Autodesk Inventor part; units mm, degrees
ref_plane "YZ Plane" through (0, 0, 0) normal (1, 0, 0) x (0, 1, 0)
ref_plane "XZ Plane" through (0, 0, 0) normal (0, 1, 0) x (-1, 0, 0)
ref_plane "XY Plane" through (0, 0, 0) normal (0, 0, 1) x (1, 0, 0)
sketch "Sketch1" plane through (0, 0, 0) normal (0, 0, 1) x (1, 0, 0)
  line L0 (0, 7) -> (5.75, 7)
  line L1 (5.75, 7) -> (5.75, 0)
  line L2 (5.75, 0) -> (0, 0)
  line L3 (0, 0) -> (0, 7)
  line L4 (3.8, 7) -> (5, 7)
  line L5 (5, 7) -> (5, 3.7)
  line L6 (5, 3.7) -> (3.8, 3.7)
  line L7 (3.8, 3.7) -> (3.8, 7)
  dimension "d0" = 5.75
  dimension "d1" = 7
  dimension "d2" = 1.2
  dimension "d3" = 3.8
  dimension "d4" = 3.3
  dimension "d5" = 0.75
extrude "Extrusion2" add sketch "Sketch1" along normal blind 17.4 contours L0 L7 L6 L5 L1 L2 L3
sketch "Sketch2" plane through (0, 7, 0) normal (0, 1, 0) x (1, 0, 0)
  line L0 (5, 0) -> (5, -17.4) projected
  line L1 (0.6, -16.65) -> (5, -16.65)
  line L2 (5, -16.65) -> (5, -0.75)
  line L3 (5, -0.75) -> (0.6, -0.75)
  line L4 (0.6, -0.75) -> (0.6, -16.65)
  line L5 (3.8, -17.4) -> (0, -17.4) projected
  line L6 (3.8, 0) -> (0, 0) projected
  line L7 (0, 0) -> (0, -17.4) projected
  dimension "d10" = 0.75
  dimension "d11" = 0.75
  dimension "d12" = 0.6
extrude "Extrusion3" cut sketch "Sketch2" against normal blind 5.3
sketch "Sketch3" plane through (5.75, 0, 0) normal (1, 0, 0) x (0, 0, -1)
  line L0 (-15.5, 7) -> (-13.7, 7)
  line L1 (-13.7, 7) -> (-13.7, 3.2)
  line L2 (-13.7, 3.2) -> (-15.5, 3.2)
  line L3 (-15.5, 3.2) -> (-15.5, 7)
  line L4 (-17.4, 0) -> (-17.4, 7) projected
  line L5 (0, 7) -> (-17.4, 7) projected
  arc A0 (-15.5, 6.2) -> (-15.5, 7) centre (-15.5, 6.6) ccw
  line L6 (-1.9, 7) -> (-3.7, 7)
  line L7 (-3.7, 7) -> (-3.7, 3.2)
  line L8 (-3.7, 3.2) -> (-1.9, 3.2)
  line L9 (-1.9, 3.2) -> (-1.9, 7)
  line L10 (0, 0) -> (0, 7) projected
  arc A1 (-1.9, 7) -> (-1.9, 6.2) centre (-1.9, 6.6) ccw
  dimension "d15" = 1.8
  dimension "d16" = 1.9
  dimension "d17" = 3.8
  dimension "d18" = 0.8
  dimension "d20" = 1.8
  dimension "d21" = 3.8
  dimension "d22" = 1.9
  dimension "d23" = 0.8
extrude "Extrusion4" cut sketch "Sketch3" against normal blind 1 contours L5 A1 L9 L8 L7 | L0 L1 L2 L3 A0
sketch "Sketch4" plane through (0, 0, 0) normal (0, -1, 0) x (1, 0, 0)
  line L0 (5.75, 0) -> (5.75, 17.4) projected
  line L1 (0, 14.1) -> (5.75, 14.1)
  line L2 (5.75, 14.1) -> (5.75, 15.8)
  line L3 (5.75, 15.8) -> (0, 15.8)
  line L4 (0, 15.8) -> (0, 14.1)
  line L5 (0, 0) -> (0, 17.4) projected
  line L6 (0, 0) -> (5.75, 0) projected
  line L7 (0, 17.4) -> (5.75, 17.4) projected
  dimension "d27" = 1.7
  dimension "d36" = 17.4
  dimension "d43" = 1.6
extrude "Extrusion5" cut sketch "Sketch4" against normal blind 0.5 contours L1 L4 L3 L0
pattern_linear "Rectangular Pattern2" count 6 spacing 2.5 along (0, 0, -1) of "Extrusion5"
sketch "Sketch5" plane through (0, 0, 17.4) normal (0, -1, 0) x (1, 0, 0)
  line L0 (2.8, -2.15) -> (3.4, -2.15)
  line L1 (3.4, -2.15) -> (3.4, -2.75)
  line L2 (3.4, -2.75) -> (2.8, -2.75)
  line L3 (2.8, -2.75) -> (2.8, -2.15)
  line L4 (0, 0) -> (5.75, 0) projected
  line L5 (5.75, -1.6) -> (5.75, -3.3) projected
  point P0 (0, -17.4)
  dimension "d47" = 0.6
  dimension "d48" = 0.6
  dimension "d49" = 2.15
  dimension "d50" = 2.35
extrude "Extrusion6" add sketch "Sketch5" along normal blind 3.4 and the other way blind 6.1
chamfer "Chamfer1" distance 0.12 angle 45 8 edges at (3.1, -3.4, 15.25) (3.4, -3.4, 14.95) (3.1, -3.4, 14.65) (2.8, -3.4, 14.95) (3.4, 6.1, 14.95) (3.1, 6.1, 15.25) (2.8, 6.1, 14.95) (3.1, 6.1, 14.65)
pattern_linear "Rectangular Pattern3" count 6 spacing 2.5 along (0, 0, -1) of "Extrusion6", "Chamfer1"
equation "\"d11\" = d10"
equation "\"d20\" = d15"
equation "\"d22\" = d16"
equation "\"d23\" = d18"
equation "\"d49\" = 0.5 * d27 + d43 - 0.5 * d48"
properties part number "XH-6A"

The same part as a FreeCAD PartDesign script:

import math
import FreeCAD as App
import Part
import Sketcher

V = App.Vector
Q = App.Units.Quantity


def edges_at(feature, points):
    """Names of the edges that pass closest to the given points."""
    edges = feature.Shape.Edges
    near = lambda p: min(range(len(edges)), key=lambda i: edges[i].distToShape(Part.Vertex(*p))[0])
    return sorted({f"Edge{near(p) + 1}" for p in points})

doc = App.newDocument("Part")
body = doc.addObject("PartDesign::Body", "Body")

sketch1 = doc.addObject("Sketcher::SketchObject", "Sketch")
body.addObject(sketch1)
sketch1.AttachmentSupport = (doc.XY_Plane, [""])
sketch1.MapMode = "FlatFace"
sketch1.addGeometry(Part.LineSegment(V(3.8, 7, 0), V(0, 7, 0)), False)
sketch1.addGeometry(Part.LineSegment(V(0, 7, 0), V(0, 0, 0)), False)
sketch1.addGeometry(Part.LineSegment(V(0, 0, 0), V(5.8, 0, 0)), False)
sketch1.addGeometry(Part.LineSegment(V(5.8, 0, 0), V(5.8, 7, 0)), False)
sketch1.addGeometry(Part.LineSegment(V(5.8, 7, 0), V(5, 7, 0)), False)
sketch1.addGeometry(Part.LineSegment(V(5, 7, 0), V(5, 3.7, 0)), False)
sketch1.addGeometry(Part.LineSegment(V(5, 3.7, 0), V(3.8, 3.7, 0)), False)
sketch1.addGeometry(Part.LineSegment(V(3.8, 3.7, 0), V(3.8, 7, 0)), False)
sketch1.addConstraint(Sketcher.Constraint("Coincident", 0, 2, 1, 1))
sketch1.addConstraint(Sketcher.Constraint("Coincident", 1, 2, 2, 1))
sketch1.addConstraint(Sketcher.Constraint("Coincident", 2, 2, 3, 1))
sketch1.addConstraint(Sketcher.Constraint("Coincident", 3, 2, 4, 1))
sketch1.addConstraint(Sketcher.Constraint("Coincident", 4, 2, 5, 1))
sketch1.addConstraint(Sketcher.Constraint("Coincident", 5, 2, 6, 1))
sketch1.addConstraint(Sketcher.Constraint("Coincident", 6, 2, 7, 1))
sketch1.addConstraint(Sketcher.Constraint("Coincident", 7, 2, 0, 1))
sketch1.addConstraint(Sketcher.Constraint("Horizontal", 0))
sketch1.addConstraint(Sketcher.Constraint("Vertical", 1))
sketch1.addConstraint(Sketcher.Constraint("Horizontal", 2))
sketch1.addConstraint(Sketcher.Constraint("Vertical", 3))
sketch1.addConstraint(Sketcher.Constraint("Horizontal", 4))
sketch1.addConstraint(Sketcher.Constraint("Vertical", 5))
sketch1.addConstraint(Sketcher.Constraint("Horizontal", 6))
sketch1.addConstraint(Sketcher.Constraint("Vertical", 7))
sketch1.addConstraint(Sketcher.Constraint("Coincident", 1, 2, -1, 1))
sketch1.addConstraint(Sketcher.Constraint("Horizontal", 0, 2, 3, 2))
sketch1.addConstraint(Sketcher.Constraint("DistanceY", 1, 2, 1, 1, Q("7 mm")))
sketch1.addConstraint(Sketcher.Constraint("DistanceX", 0, 2, 0, 1, Q("3.8 mm")))
sketch1.addConstraint(Sketcher.Constraint("DistanceX", 6, 2, 6, 1, Q("1.2 mm")))
sketch1.addConstraint(Sketcher.Constraint("DistanceY", 5, 2, 5, 1, Q("3.3 mm")))
sketch1.addConstraint(Sketcher.Constraint("DistanceX", 2, 1, 2, 2, Q("5.75 mm")))
pad1 = doc.addObject("PartDesign::Pad", "Pad")
body.addObject(pad1)
pad1.Profile = sketch1
pad1.Length = 17.4

sketch2 = doc.addObject("Sketcher::SketchObject", "Sketch001")
body.addObject(sketch2)
sketch2.AttachmentSupport = (doc.XZ_Plane, [""])
sketch2.MapMode = "FlatFace"
sketch2.AttachmentOffset = App.Placement(V(0, 0, -7), App.Rotation())
sketch2.addGeometry(Part.LineSegment(V(5, 16.6, 0), V(5, 0.8, 0)), False)
sketch2.addGeometry(Part.LineSegment(V(5, 0.8, 0), V(0.6, 0.8, 0)), False)
sketch2.addGeometry(Part.LineSegment(V(0.6, 0.8, 0), V(0.6, 16.6, 0)), False)
sketch2.addGeometry(Part.LineSegment(V(0.6, 16.6, 0), V(5, 16.6, 0)), False)
sketch2.addConstraint(Sketcher.Constraint("Coincident", 0, 2, 1, 1))
sketch2.addConstraint(Sketcher.Constraint("Coincident", 1, 2, 2, 1))
sketch2.addConstraint(Sketcher.Constraint("Coincident", 2, 2, 3, 1))
sketch2.addConstraint(Sketcher.Constraint("Coincident", 3, 2, 0, 1))
sketch2.addConstraint(Sketcher.Constraint("Vertical", 0))
sketch2.addConstraint(Sketcher.Constraint("Horizontal", 1))
sketch2.addConstraint(Sketcher.Constraint("Vertical", 2))
sketch2.addConstraint(Sketcher.Constraint("Horizontal", 3))
sketch2.addConstraint(Sketcher.Constraint("DistanceX", -1, 1, 1, 2, Q("0.6 mm")))
sketch2.addConstraint(Sketcher.Constraint("DistanceY", -1, 1, 0, 2, Q("0.75 mm")))
sketch2.addConstraint(Sketcher.Constraint("DistanceX", 1, 2, 1, 1, Q("4.4 mm")))
sketch2.addConstraint(Sketcher.Constraint("DistanceY", 0, 2, 0, 1, Q("15.9 mm")))
pocket1 = doc.addObject("PartDesign::Pocket", "Pocket")
body.addObject(pocket1)
pocket1.Profile = sketch2
pocket1.Length = 5.3
pocket1.Reversed = True

sketch3 = doc.addObject("Sketcher::SketchObject", "Sketch002")
body.addObject(sketch3)
sketch3.AttachmentSupport = (doc.YZ_Plane, [""])
sketch3.MapMode = "FlatFace"
sketch3.AttachmentOffset = App.Placement(V(0, 0, 5.75), App.Rotation())
sketch3.addGeometry(Part.LineSegment(V(7, 1.9, 0), V(7, 3.7, 0)), False)
sketch3.addGeometry(Part.LineSegment(V(7, 3.7, 0), V(3.2, 3.7, 0)), False)
sketch3.addGeometry(Part.LineSegment(V(3.2, 3.7, 0), V(3.2, 1.9, 0)), False)
sketch3.addGeometry(Part.LineSegment(V(3.2, 1.9, 0), V(6.2, 1.9, 0)), False)
sketch3.addGeometry(Part.ArcOfCircle(Part.Circle(V(6.6, 1.9, 0), V(0, 0, 1), 0.4), math.radians(0), math.radians(180)), False)
sketch3.addGeometry(Part.LineSegment(V(7, 13.7, 0), V(7, 15.5, 0)), False)
sketch3.addGeometry(Part.ArcOfCircle(Part.Circle(V(6.6, 15.5, 0), V(0, 0, 1), 0.4), math.radians(180), math.radians(360)), False)
sketch3.addGeometry(Part.LineSegment(V(6.2, 15.5, 0), V(3.2, 15.5, 0)), False)
sketch3.addGeometry(Part.LineSegment(V(3.2, 15.5, 0), V(3.2, 13.7, 0)), False)
sketch3.addGeometry(Part.LineSegment(V(3.2, 13.7, 0), V(7, 13.7, 0)), False)
sketch3.addConstraint(Sketcher.Constraint("Coincident", 0, 2, 1, 1))
sketch3.addConstraint(Sketcher.Constraint("Coincident", 1, 2, 2, 1))
sketch3.addConstraint(Sketcher.Constraint("Coincident", 2, 2, 3, 1))
sketch3.addConstraint(Sketcher.Constraint("Coincident", 3, 2, 4, 2))
sketch3.addConstraint(Sketcher.Constraint("Tangent", 4, 1, 0, 1))
sketch3.addConstraint(Sketcher.Constraint("Tangent", 5, 2, 6, 2))
sketch3.addConstraint(Sketcher.Constraint("Coincident", 6, 1, 7, 1))
sketch3.addConstraint(Sketcher.Constraint("Coincident", 7, 2, 8, 1))
sketch3.addConstraint(Sketcher.Constraint("Coincident", 8, 2, 9, 1))
sketch3.addConstraint(Sketcher.Constraint("Coincident", 9, 2, 5, 1))
sketch3.addConstraint(Sketcher.Constraint("Vertical", 0))
sketch3.addConstraint(Sketcher.Constraint("Horizontal", 1))
sketch3.addConstraint(Sketcher.Constraint("Vertical", 2))
sketch3.addConstraint(Sketcher.Constraint("Horizontal", 3))
sketch3.addConstraint(Sketcher.Constraint("Vertical", 5))
sketch3.addConstraint(Sketcher.Constraint("Horizontal", 7))
sketch3.addConstraint(Sketcher.Constraint("Vertical", 8))
sketch3.addConstraint(Sketcher.Constraint("Horizontal", 9))
sketch3.addConstraint(Sketcher.Constraint("Equal", 4, 6))
sketch3.addConstraint(Sketcher.Constraint("Horizontal", 4, 3, 2, 2))
sketch3.addConstraint(Sketcher.Constraint("Horizontal", 5, 2, 6, 1))
sketch3.addConstraint(Sketcher.Constraint("Vertical", 4, 3, 6, 3))
sketch3.addConstraint(Sketcher.Constraint("Vertical", 2, 2, 7, 2))
sketch3.addConstraint(Sketcher.Constraint("Equal", 2, 5))
sketch3.addConstraint(Sketcher.Constraint("Radius", 4, Q("0.4 mm")))
sketch3.addConstraint(Sketcher.Constraint("DistanceX", 1, 2, 1, 1, Q("3.8 mm")))
sketch3.addConstraint(Sketcher.Constraint("DistanceY", 0, 1, 0, 2, Q("1.8 mm")))
sketch3.addConstraint(Sketcher.Constraint("DistanceY", -1, 1, 4, 3, Q("1.9 mm")))
sketch3.addConstraint(Sketcher.Constraint("DistanceX", -1, 1, 0, 2, Q("7 mm")))
sketch3.addConstraint(Sketcher.Constraint("DistanceY", 1, 2, 8, 2, Q("10 mm")))
pocket2 = doc.addObject("PartDesign::Pocket", "Pocket001")
body.addObject(pocket2)
pocket2.Profile = sketch3
pocket2.Length = 1

sketch4 = doc.addObject("Sketcher::SketchObject", "Sketch003")
body.addObject(sketch4)
sketch4.AttachmentSupport = (doc.XZ_Plane, [""])
sketch4.MapMode = "FlatFace"
sketch4.addGeometry(Part.LineSegment(V(0, 14.1, 0), V(5.8, 14.1, 0)), False)
sketch4.addGeometry(Part.LineSegment(V(5.8, 14.1, 0), V(5.8, 15.8, 0)), False)
sketch4.addGeometry(Part.LineSegment(V(5.8, 15.8, 0), V(0, 15.8, 0)), False)
sketch4.addGeometry(Part.LineSegment(V(0, 15.8, 0), V(0, 14.1, 0)), False)
sketch4.addConstraint(Sketcher.Constraint("Coincident", 0, 2, 1, 1))
sketch4.addConstraint(Sketcher.Constraint("Coincident", 1, 2, 2, 1))
sketch4.addConstraint(Sketcher.Constraint("Coincident", 2, 2, 3, 1))
sketch4.addConstraint(Sketcher.Constraint("Coincident", 3, 2, 0, 1))
sketch4.addConstraint(Sketcher.Constraint("Horizontal", 0))
sketch4.addConstraint(Sketcher.Constraint("Vertical", 1))
sketch4.addConstraint(Sketcher.Constraint("Horizontal", 2))
sketch4.addConstraint(Sketcher.Constraint("Vertical", 3))
sketch4.addConstraint(Sketcher.Constraint("PointOnObject", 2, 2, -2))
sketch4.addConstraint(Sketcher.Constraint("DistanceY", 1, 1, 1, 2, Q("1.7 mm")))
sketch4.addConstraint(Sketcher.Constraint("DistanceX", 0, 1, 0, 2, Q("5.75 mm")))
sketch4.addConstraint(Sketcher.Constraint("DistanceY", -1, 1, 0, 2, Q("14.1 mm")))
pocket3 = doc.addObject("PartDesign::Pocket", "Pocket002")
body.addObject(pocket3)
pocket3.Profile = sketch4
pocket3.Length = 0.5
doc.recompute()

linearpattern = doc.addObject("PartDesign::LinearPattern", "LinearPattern")
body.addObject(linearpattern)
linearpattern.Originals = [pocket3]
linearpattern.Direction = (doc.Z_Axis, [""])
linearpattern.Mode = "offset"
linearpattern.Offset = 2.5
linearpattern.Occurrences = 6
linearpattern.Reversed = True
body.Tip = linearpattern

sketch5 = doc.addObject("Sketcher::SketchObject", "Sketch004")
body.addObject(sketch5)
sketch5.AttachmentSupport = (doc.XZ_Plane, [""])
sketch5.MapMode = "FlatFace"
sketch5.addGeometry(Part.LineSegment(V(3.4, 15.2, 0), V(2.8, 15.2, 0)), False)
sketch5.addGeometry(Part.LineSegment(V(2.8, 15.2, 0), V(2.8, 14.7, 0)), False)
sketch5.addGeometry(Part.LineSegment(V(2.8, 14.7, 0), V(3.4, 14.7, 0)), False)
sketch5.addGeometry(Part.LineSegment(V(3.4, 14.7, 0), V(3.4, 15.2, 0)), False)
sketch5.addConstraint(Sketcher.Constraint("Coincident", 0, 2, 1, 1))
sketch5.addConstraint(Sketcher.Constraint("Coincident", 1, 2, 2, 1))
sketch5.addConstraint(Sketcher.Constraint("Coincident", 2, 2, 3, 1))
sketch5.addConstraint(Sketcher.Constraint("Coincident", 3, 2, 0, 1))
sketch5.addConstraint(Sketcher.Constraint("Horizontal", 0))
sketch5.addConstraint(Sketcher.Constraint("Vertical", 1))
sketch5.addConstraint(Sketcher.Constraint("Horizontal", 2))
sketch5.addConstraint(Sketcher.Constraint("Vertical", 3))
sketch5.addConstraint(Sketcher.Constraint("Equal", 2, 1))
sketch5.addConstraint(Sketcher.Constraint("DistanceX", 0, 2, 0, 1, Q("0.6 mm")))
sketch5.addConstraint(Sketcher.Constraint("DistanceX", -1, 1, 0, 2, Q("2.8 mm")))
sketch5.addConstraint(Sketcher.Constraint("DistanceY", -1, 1, 0, 2, Q("15.25 mm")))
pad2 = doc.addObject("PartDesign::Pad", "Pad001")
body.addObject(pad2)
pad2.Profile = sketch5
pad2.Type = "TwoLengths"
pad2.Length = 3.4
pad2.Length2 = 6.1
doc.recompute()

chamfer = doc.addObject("PartDesign::Chamfer", "Chamfer")
body.addObject(chamfer)
chamfer.Base = (pad2, edges_at(pad2, [
    (3.1, -3.4, 15.25),
    (3.4, -3.4, 14.95),
    (3.1, -3.4, 14.65),
    (2.8, -3.4, 14.95),
    (3.4, 6.1, 14.95),
    (3.1, 6.1, 15.25),
    (2.8, 6.1, 14.95),
    (3.1, 6.1, 14.65),
]))
chamfer.Size = 0.12
doc.recompute()

linearpattern2 = doc.addObject("PartDesign::LinearPattern", "LinearPattern001")
body.addObject(linearpattern2)
linearpattern2.Originals = [pad2, chamfer]
linearpattern2.Direction = (doc.Z_Axis, [""])
linearpattern2.Mode = "offset"
linearpattern2.Offset = 2.5
linearpattern2.Occurrences = 6
linearpattern2.Reversed = True
body.Tip = linearpattern2

doc.recompute()
